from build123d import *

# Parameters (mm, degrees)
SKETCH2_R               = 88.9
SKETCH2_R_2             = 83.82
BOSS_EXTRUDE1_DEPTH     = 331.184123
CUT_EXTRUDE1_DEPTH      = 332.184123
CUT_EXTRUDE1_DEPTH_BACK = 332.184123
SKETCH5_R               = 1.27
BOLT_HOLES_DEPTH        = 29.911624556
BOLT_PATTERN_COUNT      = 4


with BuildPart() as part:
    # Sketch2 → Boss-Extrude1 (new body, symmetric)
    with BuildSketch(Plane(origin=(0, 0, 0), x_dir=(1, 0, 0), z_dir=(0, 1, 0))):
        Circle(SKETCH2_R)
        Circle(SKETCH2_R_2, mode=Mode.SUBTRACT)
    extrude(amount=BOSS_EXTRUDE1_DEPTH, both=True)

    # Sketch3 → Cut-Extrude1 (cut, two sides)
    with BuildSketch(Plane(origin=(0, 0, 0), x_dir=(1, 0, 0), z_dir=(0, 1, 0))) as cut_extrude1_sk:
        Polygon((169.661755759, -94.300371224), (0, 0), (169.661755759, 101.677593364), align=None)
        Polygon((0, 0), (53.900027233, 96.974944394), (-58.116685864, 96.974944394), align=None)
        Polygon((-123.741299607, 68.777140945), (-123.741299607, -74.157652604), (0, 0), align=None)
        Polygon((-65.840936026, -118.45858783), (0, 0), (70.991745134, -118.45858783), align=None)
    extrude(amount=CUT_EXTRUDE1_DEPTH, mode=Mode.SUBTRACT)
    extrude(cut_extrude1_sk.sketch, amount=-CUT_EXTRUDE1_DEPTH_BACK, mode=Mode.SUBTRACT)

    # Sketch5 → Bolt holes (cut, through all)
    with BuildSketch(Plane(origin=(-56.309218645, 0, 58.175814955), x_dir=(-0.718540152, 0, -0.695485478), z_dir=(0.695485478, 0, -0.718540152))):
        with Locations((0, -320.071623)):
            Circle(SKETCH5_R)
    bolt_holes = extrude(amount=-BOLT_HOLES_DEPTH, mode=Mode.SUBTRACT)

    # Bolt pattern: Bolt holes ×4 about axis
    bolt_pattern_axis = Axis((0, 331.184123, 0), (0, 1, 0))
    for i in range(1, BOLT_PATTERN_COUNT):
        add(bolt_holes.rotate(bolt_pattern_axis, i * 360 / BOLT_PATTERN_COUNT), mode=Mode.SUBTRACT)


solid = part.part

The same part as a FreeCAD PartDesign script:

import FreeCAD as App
import Part
import Sketcher
from FreeCAD import Vector
Q = App.Units.Quantity


def add_polygon(sketch, points):
    """Adds a closed chain of lines whose ends are joined by coincident constraints."""
    first, n = sketch.GeometryCount, len(points)
    for a, b in zip(points, points[1:] + points[:1]):
        sketch.addGeometry(Part.LineSegment(App.Vector(*a, 0), App.Vector(*b, 0)), False)
    for i in range(n):
        sketch.addConstraint(Sketcher.Constraint("Coincident", first + i, 2, first + (i + 1) % n, 1))

doc = App.newDocument("Part")
params = doc.addObject("Spreadsheet::Sheet", "Params")
for row, (alias, value) in enumerate([
    ("sketch1_diameter", "7 in"),
    ("sketch1_diameter2", "6.6 in"),
    ("pad1_length", "662.368246 mm"),
    ("sketch3_diameter", "0.1 in"),
], start=1):
    params.set(f"A{row}", alias)
    params.set(f"B{row}", "=" + value)
    params.setAlias(f"B{row}", alias)

body = doc.addObject("PartDesign::Body", "Body")
body.AllowCompound = True

# Sketch on XZ plane
sketch1 = body.newObject("Sketcher::SketchObject", "Sketch")
sketch1.AttachmentSupport = (doc.getObject("XZ_Plane"), [""])
sketch1.MapMode = "FlatFace"
sketch1.addGeometry([
    Part.Circle(Vector(0, 0, 0), Vector(0, 0, 1), 88.9),
    Part.Circle(Vector(0, 0, 0), Vector(0, 0, 1), 83.82),
], False)
sketch1.addConstraint([
    Sketcher.Constraint("Coincident", 0, 3, -1, 1),
    Sketcher.Constraint("Coincident", 1, 3, -1, 1),
    Sketcher.Constraint("Diameter", 0, Q("7 in")),
    Sketcher.Constraint("Diameter", 1, Q("6.6 in")),
])
sketch1.setExpression("Constraints[2]", "Params.sketch1_diameter")
sketch1.setExpression("Constraints[3]", "Params.sketch1_diameter2")
pad1 = body.newObject("PartDesign::Pad", "Pad")
pad1.Profile = sketch1
pad1.setExpression("Length", "Params.pad1_length")
pad1.Midplane = True

# Sketch on XZ plane
sketch2 = body.newObject("Sketcher::SketchObject", "Sketch001")
sketch2.AttachmentSupport = (doc.getObject("XZ_Plane"), [""])
sketch2.MapMode = "FlatFace"
add_polygon(sketch2, [(0, 0), (169.661756, 94.300371), (169.661756, -101.677593)])  # lines 0-2
add_polygon(sketch2, [(0, 0), (53.900027, -96.974944), (-58.116686, -96.974944)])  # lines 3-5
add_polygon(sketch2, [(-123.7413, -68.777141), (-123.7413, 74.157653), (0, 0)])  # lines 6-8
add_polygon(sketch2, [(0, 0), (-65.840936, 118.458588), (70.991745, 118.458588)])  # lines 9-11
sketch2.addConstraint([
    Sketcher.Constraint("Vertical", 1),
    Sketcher.Constraint("Horizontal", 4),
    Sketcher.Constraint("Vertical", 6),
    Sketcher.Constraint("Horizontal", 10),
    Sketcher.Constraint("Coincident", 2, 2, -1, 1),
    Sketcher.Constraint("Coincident", 5, 2, -1, 1),
    Sketcher.Constraint("Coincident", 7, 2, -1, 1),
    Sketcher.Constraint("Coincident", 11, 2, -1, 1),
    Sketcher.Constraint("Perpendicular", 0, 3),
    Sketcher.Constraint("Perpendicular", 2, 5),
    Sketcher.Constraint("Perpendicular", 5, 7),
    Sketcher.Constraint("Perpendicular", 3, 8),
    Sketcher.Constraint("Perpendicular", 8, 9),
    Sketcher.Constraint("Perpendicular", 7, 11),
    Sketcher.Constraint("DistanceX", 10, 1, 10, 2, Q("136.832681 mm")),
    Sketcher.Constraint("DistanceX", 6, 2, -1, 1, Q("123.7413 mm")),
    Sketcher.Constraint("Distance", 0, Q("194.107371 mm")),
    Sketcher.Constraint("Distance", 11, Q("138.102371 mm")),
    Sketcher.Constraint("DistanceX", 4, 2, 4, 1, Q("112.016713 mm")),
    Sketcher.Constraint("DistanceY", 1, 2, 1, 1, Q("195.977965 mm")),
])
pocket1 = body.newObject("PartDesign::Pocket", "Pocket")
pocket1.Profile = sketch2
pocket1.Type = "ThroughAll"
pocket1.Midplane = True

# Sketch on an angled plane
sketch3 = body.newObject("Sketcher::SketchObject", "Sketch002")
sketch3.Placement = App.Placement(Vector(-56.309219, 0, 58.175815), App.Rotation(Vector(-0.718540152, 0, -0.695485478), Vector(0, 1, 0), Vector(0.695485478, 0, -0.718540152), "ZXY"))
sketch3.addGeometry(Part.Circle(Vector(0, -320.071623, 0), Vector(0, 0, 1), 1.27), False)
sketch3.addConstraint([
    Sketcher.Constraint("PointOnObject", 0, 3, -2),
    Sketcher.Constraint("Diameter", 0, Q("0.1 in")),
    Sketcher.Constraint("DistanceY", 0, 3, -1, 1, Q("320.071623 mm")),
])
sketch3.setExpression("Constraints[1]", "Params.sketch3_diameter")
pocket2 = body.newObject("PartDesign::Pocket", "Pocket001")
pocket2.Profile = sketch3
pocket2.Type = "ThroughAll"
doc.recompute()

polarpattern = body.newObject("PartDesign::PolarPattern", "PolarPattern")
polarpattern.Originals = [pocket2]
polarpattern.Axis = (doc.getObject("Y_Axis"), [""])
polarpattern.Angle = 360
polarpattern.Occurrences = 4
body.Tip = polarpattern

doc.recompute()
